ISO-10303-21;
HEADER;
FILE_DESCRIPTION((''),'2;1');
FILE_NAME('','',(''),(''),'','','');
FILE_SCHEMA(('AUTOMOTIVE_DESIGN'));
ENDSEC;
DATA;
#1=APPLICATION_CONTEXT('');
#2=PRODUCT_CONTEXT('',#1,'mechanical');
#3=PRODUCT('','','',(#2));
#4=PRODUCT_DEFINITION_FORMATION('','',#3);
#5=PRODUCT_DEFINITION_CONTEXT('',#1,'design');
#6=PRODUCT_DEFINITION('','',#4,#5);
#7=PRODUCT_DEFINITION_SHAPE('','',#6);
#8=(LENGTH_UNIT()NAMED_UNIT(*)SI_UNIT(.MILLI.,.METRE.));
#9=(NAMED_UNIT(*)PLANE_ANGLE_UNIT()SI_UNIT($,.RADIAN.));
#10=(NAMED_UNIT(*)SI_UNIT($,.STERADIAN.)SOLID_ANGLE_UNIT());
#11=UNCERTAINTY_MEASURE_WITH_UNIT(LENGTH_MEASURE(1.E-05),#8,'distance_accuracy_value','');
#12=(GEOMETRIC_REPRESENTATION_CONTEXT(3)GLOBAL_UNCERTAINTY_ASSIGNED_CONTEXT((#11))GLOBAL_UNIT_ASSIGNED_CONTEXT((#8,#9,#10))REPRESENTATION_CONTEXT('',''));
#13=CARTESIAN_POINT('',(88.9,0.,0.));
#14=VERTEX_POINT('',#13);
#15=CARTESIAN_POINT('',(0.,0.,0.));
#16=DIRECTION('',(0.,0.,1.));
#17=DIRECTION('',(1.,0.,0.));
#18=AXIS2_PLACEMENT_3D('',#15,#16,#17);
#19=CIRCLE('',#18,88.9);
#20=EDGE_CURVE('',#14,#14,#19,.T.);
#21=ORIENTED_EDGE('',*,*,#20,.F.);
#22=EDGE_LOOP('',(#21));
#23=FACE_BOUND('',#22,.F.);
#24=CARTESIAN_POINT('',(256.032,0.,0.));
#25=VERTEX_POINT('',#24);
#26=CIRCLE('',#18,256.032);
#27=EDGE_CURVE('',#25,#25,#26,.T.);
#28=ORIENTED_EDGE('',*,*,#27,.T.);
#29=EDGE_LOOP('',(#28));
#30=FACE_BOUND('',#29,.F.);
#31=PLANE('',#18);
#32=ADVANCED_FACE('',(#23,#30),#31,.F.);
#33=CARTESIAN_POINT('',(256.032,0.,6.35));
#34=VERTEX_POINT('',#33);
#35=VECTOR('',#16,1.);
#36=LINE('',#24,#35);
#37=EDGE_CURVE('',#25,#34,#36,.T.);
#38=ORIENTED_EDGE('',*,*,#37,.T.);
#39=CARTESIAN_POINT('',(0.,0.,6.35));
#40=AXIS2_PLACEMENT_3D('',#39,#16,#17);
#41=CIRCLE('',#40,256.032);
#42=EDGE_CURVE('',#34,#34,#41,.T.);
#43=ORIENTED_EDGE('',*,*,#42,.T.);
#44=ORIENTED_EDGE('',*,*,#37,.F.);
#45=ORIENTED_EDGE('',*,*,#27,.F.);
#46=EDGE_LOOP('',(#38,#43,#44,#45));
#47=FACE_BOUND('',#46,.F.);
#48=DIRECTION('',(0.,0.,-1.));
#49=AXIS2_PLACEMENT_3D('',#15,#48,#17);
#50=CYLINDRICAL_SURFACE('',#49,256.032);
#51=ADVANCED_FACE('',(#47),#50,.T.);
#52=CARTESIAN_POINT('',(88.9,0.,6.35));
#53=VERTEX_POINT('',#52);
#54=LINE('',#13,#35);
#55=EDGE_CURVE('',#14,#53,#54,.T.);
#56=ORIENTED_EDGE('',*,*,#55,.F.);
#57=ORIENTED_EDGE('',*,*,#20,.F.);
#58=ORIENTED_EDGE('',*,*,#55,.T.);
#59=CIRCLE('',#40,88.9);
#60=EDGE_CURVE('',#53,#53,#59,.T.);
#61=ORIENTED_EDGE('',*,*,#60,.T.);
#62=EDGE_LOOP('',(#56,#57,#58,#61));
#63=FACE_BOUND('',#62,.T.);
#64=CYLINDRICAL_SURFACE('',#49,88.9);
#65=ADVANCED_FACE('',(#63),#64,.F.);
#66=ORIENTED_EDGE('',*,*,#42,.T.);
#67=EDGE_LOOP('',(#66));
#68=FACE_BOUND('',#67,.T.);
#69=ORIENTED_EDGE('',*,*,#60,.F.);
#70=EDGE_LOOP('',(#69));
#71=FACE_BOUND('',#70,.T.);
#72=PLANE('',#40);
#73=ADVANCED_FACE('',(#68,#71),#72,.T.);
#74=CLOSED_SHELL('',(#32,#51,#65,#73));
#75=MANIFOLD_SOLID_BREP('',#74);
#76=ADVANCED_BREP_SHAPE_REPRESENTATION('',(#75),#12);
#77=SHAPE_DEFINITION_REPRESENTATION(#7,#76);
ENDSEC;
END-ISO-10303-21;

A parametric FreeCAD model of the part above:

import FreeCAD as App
import Part
import Sketcher
from FreeCAD import Vector
Q = App.Units.Quantity

doc = App.newDocument("Part")
body = doc.addObject("PartDesign::Body", "Body")

# Sketch on XY plane
sketch1 = doc.addObject("Sketcher::SketchObject", "Sketch")
body.addObject(sketch1)
sketch1.AttachmentSupport = (doc.XY_Plane, [""])
sketch1.MapMode = "FlatFace"
sketch1.addGeometry([
    Part.Circle(Vector(0, 0, 0), Vector(0, 0, 1), 256.032),
    Part.Circle(Vector(0, 0, 0), Vector(0, 0, 1), 88.9),
], False)
sketch1.addConstraint([
    Sketcher.Constraint("Coincident", 0, 3, -1, 1),
    Sketcher.Constraint("Coincident", 1, 3, -1, 1),
    Sketcher.Constraint("Diameter", 1, Q("7 in")),
    Sketcher.Constraint("Diameter", 0, Q("20.16 in")),
])
pad1 = doc.addObject("PartDesign::Pad", "Pad")
body.addObject(pad1)
pad1.Profile = sketch1
pad1.Length = Q("0.25 in")

doc.recompute()
